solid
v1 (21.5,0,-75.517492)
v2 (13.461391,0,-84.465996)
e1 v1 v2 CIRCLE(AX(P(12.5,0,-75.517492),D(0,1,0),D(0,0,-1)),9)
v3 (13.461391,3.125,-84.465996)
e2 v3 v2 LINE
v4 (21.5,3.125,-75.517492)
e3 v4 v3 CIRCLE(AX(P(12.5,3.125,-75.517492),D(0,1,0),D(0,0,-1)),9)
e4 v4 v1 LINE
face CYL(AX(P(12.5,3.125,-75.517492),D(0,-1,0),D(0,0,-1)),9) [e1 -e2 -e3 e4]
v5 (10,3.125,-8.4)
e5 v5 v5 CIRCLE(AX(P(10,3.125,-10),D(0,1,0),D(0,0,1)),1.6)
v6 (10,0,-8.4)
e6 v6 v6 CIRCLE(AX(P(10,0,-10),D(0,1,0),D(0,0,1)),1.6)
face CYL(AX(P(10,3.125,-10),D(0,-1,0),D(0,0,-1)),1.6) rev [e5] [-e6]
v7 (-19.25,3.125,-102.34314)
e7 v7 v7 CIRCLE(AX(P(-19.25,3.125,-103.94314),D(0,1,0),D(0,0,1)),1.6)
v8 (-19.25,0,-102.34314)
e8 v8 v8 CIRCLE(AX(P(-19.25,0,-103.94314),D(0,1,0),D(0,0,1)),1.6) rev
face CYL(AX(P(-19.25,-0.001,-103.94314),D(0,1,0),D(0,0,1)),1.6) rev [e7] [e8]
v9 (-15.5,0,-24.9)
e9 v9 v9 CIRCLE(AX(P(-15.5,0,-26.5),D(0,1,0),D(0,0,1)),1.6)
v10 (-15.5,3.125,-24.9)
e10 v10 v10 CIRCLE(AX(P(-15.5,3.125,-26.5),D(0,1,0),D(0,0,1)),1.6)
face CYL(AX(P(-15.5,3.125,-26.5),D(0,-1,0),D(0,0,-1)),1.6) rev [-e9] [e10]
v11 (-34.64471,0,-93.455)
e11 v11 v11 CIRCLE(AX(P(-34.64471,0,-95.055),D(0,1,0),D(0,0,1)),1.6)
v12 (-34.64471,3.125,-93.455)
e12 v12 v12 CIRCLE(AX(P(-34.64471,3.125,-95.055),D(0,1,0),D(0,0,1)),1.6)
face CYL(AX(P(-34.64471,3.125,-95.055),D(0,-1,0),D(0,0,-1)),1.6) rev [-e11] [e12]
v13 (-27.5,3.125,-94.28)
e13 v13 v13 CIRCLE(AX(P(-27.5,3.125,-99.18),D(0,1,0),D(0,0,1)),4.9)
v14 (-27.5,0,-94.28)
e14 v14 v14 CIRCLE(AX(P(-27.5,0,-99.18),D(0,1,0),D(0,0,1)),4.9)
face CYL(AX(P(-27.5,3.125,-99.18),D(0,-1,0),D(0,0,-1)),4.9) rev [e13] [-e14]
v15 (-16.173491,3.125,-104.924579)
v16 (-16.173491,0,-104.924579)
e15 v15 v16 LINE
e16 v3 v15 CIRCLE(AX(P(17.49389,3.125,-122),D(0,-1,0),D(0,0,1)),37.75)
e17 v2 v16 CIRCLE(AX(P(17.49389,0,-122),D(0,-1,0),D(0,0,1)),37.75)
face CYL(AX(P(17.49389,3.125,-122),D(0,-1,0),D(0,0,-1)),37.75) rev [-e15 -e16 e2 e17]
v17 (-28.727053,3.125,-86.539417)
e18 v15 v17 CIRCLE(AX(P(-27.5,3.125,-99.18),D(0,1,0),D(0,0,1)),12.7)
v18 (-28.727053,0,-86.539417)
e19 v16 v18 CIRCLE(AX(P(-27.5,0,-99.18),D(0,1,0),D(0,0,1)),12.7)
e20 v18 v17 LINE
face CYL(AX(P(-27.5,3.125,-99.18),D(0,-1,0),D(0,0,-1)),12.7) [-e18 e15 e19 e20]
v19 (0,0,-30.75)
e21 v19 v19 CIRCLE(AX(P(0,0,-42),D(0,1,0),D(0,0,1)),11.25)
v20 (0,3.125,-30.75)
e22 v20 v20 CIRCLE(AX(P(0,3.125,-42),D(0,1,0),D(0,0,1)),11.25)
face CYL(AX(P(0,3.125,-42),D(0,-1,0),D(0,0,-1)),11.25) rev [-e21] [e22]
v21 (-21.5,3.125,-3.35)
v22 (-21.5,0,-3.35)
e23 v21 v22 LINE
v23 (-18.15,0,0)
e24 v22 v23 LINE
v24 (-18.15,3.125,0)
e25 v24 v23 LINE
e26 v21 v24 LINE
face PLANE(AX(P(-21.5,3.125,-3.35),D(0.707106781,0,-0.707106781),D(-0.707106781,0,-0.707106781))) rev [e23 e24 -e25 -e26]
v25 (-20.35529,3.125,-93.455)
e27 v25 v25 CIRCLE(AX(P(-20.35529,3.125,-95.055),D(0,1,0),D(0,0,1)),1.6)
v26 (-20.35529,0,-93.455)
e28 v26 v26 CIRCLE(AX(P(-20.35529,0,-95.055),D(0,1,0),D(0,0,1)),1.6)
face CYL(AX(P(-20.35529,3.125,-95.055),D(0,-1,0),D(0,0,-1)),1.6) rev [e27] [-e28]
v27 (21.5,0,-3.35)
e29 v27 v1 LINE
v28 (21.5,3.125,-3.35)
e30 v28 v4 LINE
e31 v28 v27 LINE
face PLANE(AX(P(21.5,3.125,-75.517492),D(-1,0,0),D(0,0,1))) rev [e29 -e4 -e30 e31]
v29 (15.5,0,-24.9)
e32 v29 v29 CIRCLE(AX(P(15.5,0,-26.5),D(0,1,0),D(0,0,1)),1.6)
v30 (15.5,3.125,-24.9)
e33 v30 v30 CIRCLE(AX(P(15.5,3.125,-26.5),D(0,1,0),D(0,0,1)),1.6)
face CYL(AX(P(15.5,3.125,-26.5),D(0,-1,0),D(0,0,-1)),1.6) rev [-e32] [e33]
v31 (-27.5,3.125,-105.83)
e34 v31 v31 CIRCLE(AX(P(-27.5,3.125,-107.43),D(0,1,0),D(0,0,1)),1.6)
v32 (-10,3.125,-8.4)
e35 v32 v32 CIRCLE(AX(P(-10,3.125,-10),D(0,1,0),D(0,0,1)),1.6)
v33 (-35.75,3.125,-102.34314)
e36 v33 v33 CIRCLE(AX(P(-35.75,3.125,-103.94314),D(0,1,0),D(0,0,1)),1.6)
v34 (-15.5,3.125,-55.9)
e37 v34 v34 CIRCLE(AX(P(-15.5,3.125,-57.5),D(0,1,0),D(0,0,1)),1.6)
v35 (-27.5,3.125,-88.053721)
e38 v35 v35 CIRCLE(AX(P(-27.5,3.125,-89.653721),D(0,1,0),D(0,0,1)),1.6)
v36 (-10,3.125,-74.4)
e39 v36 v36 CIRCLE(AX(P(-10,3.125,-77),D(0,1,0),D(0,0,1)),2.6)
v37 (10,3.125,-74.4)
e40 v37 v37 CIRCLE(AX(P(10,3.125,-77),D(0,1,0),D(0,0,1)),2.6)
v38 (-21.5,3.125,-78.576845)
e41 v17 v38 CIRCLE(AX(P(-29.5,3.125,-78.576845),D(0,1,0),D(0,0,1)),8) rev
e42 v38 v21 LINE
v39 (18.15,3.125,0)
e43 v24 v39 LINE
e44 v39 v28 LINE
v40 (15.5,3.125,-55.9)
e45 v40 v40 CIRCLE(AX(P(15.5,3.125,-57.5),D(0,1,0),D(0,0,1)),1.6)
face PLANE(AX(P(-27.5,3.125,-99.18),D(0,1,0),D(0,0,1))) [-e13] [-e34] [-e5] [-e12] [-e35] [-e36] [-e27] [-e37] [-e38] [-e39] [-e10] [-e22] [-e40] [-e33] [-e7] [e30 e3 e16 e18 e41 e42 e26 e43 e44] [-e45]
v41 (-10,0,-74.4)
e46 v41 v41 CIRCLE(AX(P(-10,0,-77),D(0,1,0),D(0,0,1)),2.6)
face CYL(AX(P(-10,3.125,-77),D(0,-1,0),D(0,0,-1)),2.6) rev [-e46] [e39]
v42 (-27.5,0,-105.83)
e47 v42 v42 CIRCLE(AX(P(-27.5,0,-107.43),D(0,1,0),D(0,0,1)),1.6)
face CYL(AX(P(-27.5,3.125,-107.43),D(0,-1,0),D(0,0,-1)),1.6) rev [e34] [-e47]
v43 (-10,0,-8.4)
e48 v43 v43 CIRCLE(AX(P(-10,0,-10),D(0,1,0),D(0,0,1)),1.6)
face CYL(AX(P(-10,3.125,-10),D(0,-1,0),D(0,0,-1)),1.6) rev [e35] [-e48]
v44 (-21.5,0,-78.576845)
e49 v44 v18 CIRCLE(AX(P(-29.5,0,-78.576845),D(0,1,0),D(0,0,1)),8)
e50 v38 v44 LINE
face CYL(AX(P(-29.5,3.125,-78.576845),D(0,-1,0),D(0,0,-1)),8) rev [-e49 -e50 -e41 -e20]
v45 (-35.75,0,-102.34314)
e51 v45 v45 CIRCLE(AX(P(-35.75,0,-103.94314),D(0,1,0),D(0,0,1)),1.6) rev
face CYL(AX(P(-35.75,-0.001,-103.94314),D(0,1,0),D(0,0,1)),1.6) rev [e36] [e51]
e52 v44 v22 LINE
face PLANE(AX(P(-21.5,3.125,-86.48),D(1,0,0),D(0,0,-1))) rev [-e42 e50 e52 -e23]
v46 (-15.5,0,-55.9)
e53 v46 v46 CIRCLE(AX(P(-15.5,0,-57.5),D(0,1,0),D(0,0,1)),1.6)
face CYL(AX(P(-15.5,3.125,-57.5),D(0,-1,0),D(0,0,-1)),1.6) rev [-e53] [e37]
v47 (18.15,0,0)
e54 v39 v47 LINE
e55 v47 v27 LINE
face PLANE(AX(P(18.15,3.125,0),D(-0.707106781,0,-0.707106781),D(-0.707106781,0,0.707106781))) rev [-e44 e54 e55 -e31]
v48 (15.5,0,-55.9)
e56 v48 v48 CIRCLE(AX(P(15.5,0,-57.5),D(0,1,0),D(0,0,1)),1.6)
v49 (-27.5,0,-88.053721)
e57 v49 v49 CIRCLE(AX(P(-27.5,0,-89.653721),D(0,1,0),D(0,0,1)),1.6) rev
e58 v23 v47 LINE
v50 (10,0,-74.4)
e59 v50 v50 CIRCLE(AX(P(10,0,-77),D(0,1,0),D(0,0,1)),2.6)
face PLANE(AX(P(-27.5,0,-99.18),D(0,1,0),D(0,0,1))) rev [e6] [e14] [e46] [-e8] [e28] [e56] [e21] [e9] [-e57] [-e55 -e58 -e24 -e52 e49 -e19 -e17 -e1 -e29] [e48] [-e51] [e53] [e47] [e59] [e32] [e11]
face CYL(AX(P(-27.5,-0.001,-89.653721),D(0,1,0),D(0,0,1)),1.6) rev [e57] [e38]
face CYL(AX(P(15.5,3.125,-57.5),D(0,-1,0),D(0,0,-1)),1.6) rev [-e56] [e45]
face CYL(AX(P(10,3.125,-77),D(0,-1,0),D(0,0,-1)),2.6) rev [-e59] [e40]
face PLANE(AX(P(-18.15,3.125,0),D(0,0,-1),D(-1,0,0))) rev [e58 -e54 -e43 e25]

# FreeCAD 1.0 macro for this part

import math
import FreeCAD as App
import Part
import Sketcher
Q = App.Units.Quantity


def edges_at(feature, points):
    """Names of the edges that pass closest to the given points."""
    edges = feature.Shape.Edges
    near = lambda p: min(range(len(edges)), key=lambda i: edges[i].distToShape(Part.Vertex(*p))[0])
    return sorted({f"Edge{near(p) + 1}" for p in points})

doc = App.newDocument("Part")
body = doc.addObject("PartDesign::Body", "Body")

# Sketch on XZ plane
sketch1 = body.newObject("Sketcher::SketchObject", "Sketch")
sketch1.AttachmentSupport = (doc.getObject("XZ_Plane"), [""])
sketch1.MapMode = "FlatFace"
sketch1.addGeometry([
    Part.LineSegment(App.Vector(-27.5, -86.5, 0), App.Vector(-21.5, -86.5, 0)),  # 0
    Part.LineSegment(App.Vector(-21.5, -86.5, 0), App.Vector(-21.5, -3.4, 0)),  # 1
    Part.LineSegment(App.Vector(-21.5, -3.4, 0), App.Vector(-18.1, 0, 0)),  # 2
    Part.LineSegment(App.Vector(-18.1, 0, 0), App.Vector(18.1, 0, 0)),  # 3
    Part.LineSegment(App.Vector(18.1, 0, 0), App.Vector(21.5, -3.4, 0)),  # 4
    Part.LineSegment(App.Vector(21.5, -3.4, 0), App.Vector(21.5, -75.5, 0)),  # 5
    Part.ArcOfCircle(Part.Circle(App.Vector(12.5, -75.5, 0), App.Vector(0, 0, 1), 9), math.radians(-84), math.radians(0)),  # 6
    Part.ArcOfCircle(Part.Circle(App.Vector(17.5, -122, 0), App.Vector(0, 0, 1), 37.7), math.radians(96), math.radians(153)),  # 7
    Part.ArcOfCircle(Part.Circle(App.Vector(-27.5, -99.2, 0), App.Vector(0, 0, 1), 12.7), math.radians(90), math.radians(333)),  # 8
    Part.Circle(App.Vector(-10, -10, 0), App.Vector(0, 0, 1), 1.6),  # 9
    Part.Circle(App.Vector(-15.5, -26.5, 0), App.Vector(0, 0, 1), 1.6),  # 10
    Part.Circle(App.Vector(-15.5, -57.5, 0), App.Vector(0, 0, 1), 1.6),  # 11
    Part.Circle(App.Vector(10, -10, 0), App.Vector(0, 0, 1), 1.6),  # 12
    Part.Circle(App.Vector(15.5, -26.5, 0), App.Vector(0, 0, 1), 1.6),  # 13
    Part.Circle(App.Vector(0, -42, 0), App.Vector(0, 0, 1), 11.2),  # 14
    Part.Circle(App.Vector(15.5, -57.5, 0), App.Vector(0, 0, 1), 1.6),  # 15
    Part.Circle(App.Vector(-10, -77, 0), App.Vector(0, 0, 1), 2.6),  # 16
    Part.Circle(App.Vector(-34.6, -95.1, 0), App.Vector(0, 0, 1), 1.6),  # 17
    Part.Circle(App.Vector(-27.5, -99.2, 0), App.Vector(0, 0, 1), 4.9),  # 18
    Part.Circle(App.Vector(-27.5, -107.4, 0), App.Vector(0, 0, 1), 1.6),  # 19
    Part.Circle(App.Vector(-20.4, -95.1, 0), App.Vector(0, 0, 1), 1.6),  # 20
    Part.Circle(App.Vector(10, -77, 0), App.Vector(0, 0, 1), 2.6),  # 21
], False)
sketch1.addConstraint([
    Sketcher.Constraint("Coincident", 0, 2, 1, 1),
    Sketcher.Constraint("Coincident", 1, 2, 2, 1),
    Sketcher.Constraint("Coincident", 2, 2, 3, 1),
    Sketcher.Constraint("Coincident", 3, 2, 4, 1),
    Sketcher.Constraint("Coincident", 4, 2, 5, 1),
    Sketcher.Constraint("Tangent", 5, 2, 6, 2),
    Sketcher.Constraint("Tangent", 6, 1, 7, 1),
    Sketcher.Constraint("Tangent", 7, 2, 8, 2),
    Sketcher.Constraint("Tangent", 8, 1, 0, 1),
    Sketcher.Constraint("Horizontal", 0),
    Sketcher.Constraint("Vertical", 1),
    Sketcher.Constraint("Horizontal", 3),
    Sketcher.Constraint("Vertical", 5),
    Sketcher.Constraint("Coincident", 18, 3, 8, 3),
    Sketcher.Constraint("Equal", 9, 10),
    Sketcher.Constraint("Equal", 10, 11),
    Sketcher.Constraint("Equal", 11, 12),
    Sketcher.Constraint("Equal", 12, 13),
    Sketcher.Constraint("Equal", 13, 15),
    Sketcher.Constraint("Equal", 15, 17),
    Sketcher.Constraint("Equal", 17, 19),
    Sketcher.Constraint("Equal", 19, 20),
    Sketcher.Constraint("Equal", 16, 21),
    Sketcher.Constraint("Symmetric", 2, 2, 3, 2, -1, 1),
    Sketcher.Constraint("Symmetric", 9, 3, 12, 3, -2),
    Sketcher.Constraint("Symmetric", 10, 3, 13, 3, -2),
    Sketcher.Constraint("Symmetric", 11, 3, 15, 3, -2),
    Sketcher.Constraint("Symmetric", 16, 3, 21, 3, -2),
    Sketcher.Constraint("Symmetric", 1, 2, 4, 2, -2),
    Sketcher.Constraint("PointOnObject", 14, 3, -2),
    Sketcher.Constraint("Perpendicular", 2, 4),
    Sketcher.Constraint("Horizontal", 17, 3, 20, 3),
    Sketcher.Constraint("Vertical", 10, 3, 11, 3),
    Sketcher.Constraint("Vertical", 9, 3, 16, 3),
    Sketcher.Constraint("Vertical", 18, 3, 19, 3),
    Sketcher.Constraint("Radius", 6, Q("9 mm")),
    Sketcher.Constraint("Diameter", 9, Q("3.2 mm")),
    Sketcher.Constraint("Diameter", 14, Q("22.5 mm")),
    Sketcher.Constraint("Diameter", 16, Q("5.2 mm")),
    Sketcher.Constraint("Diameter", 18, Q("9.8 mm")),
    Sketcher.Constraint("Radius", 8, Q("12.7 mm")),
    Sketcher.Constraint("DistanceX", 0, 1, 0, 2, Q("6 mm")),
    Sketcher.Constraint("Radius", 7, Q("37.75 mm")),
    Sketcher.Constraint("DistanceX", 3, 1, 3, 2, Q("36.3 mm")),
    Sketcher.Constraint("DistanceY", 7, 3, -1, 1, Q("122 mm")),
    Sketcher.Constraint("DistanceX", 9, 3, -1, 1, Q("10 mm")),
    Sketcher.Constraint("DistanceY", 9, 3, -1, 1, Q("10 mm")),
    Sketcher.Constraint("DistanceY", 14, 3, -1, 1, Q("42 mm")),
    Sketcher.Constraint("DistanceY", 16, 3, -1, 1, Q("77 mm")),
    Sketcher.Constraint("DistanceX", 8, 3, 6, 3, Q("40 mm")),
    Sketcher.Constraint("DistanceX", 10, 3, 6, 3, Q("28 mm")),
    Sketcher.Constraint("DistanceY", 11, 3, 10, 3, Q("31 mm")),
    Sketcher.Constraint("DistanceY", 1, 1, 1, 2, Q("83.13 mm")),
    Sketcher.Constraint("DistanceY", 10, 3, -1, 1, Q("26.5 mm")),
    Sketcher.Constraint("DistanceY", 19, 3, -1, 1, Q("107.43 mm")),
    Sketcher.Constraint("DistanceY", 17, 3, -1, 1, Q("95.055 mm")),
    Sketcher.Constraint("DistanceX", 17, 3, 7, 3, Q("52.138599 mm")),
    Sketcher.Constraint("DistanceX", 20, 3, 7, 2, Q("4.1818 mm")),
])
pad1 = body.newObject("PartDesign::Pad", "Pad")
pad1.Profile = sketch1
pad1.Length = 3.125
pad1.Reversed = True
doc.recompute()

fillet = body.newObject("PartDesign::Fillet", "Fillet")
fillet.Base = (pad1, edges_at(pad1, [(-21.5, 1.562, -86.48)]))
fillet.Radius = 8

# Sketch on XZ plane
sketch2 = body.newObject("Sketcher::SketchObject", "Sketch001")
sketch2.AttachmentSupport = (doc.getObject("XZ_Plane"), [""])
sketch2.MapMode = "FlatFace"
sketch2.AttachmentOffset = App.Placement(App.Vector(0, 0, -3.125), App.Rotation())
sketch2.addGeometry(Part.Circle(App.Vector(-27.5, -89.7, 0), App.Vector(0, 0, 1), 1.6), False)
sketch2.addConstraint([
    Sketcher.Constraint("Diameter", 0, Q("3.2 mm")),
    Sketcher.Constraint("DistanceX", 0, 3, -1, 1, Q("27.5 mm")),
    Sketcher.Constraint("DistanceY", 0, 3, -1, 1, Q("89.653721 mm")),
])
pocket1 = body.newObject("PartDesign::Pocket", "Pocket")
pocket1.Profile = sketch2
pocket1.Type = "UpToFirst"
pocket1.Reversed = True

# Sketch on XZ plane
sketch3 = body.newObject("Sketcher::SketchObject", "Sketch002")
sketch3.AttachmentSupport = (doc.getObject("XZ_Plane"), [""])
sketch3.MapMode = "FlatFace"
sketch3.AttachmentOffset = App.Placement(App.Vector(0, 0, -3.125), App.Rotation())
sketch3.addGeometry(Part.Circle(App.Vector(-35.8, -103.9, 0), App.Vector(0, 0, 1), 1.6), False)
sketch3.addConstraint([
    Sketcher.Constraint("Diameter", 0, Q("3.2 mm")),
    Sketcher.Constraint("DistanceX", 0, 3, -1, 1, Q("35.75 mm")),
    Sketcher.Constraint("DistanceY", 0, 3, -1, 1, Q("103.94314 mm")),
])
pocket2 = body.newObject("PartDesign::Pocket", "Pocket001")
pocket2.Profile = sketch3
pocket2.Type = "UpToFirst"
pocket2.Reversed = True

# Sketch on XZ plane
sketch4 = body.newObject("Sketcher::SketchObject", "Sketch003")
sketch4.AttachmentSupport = (doc.getObject("XZ_Plane"), [""])
sketch4.MapMode = "FlatFace"
sketch4.AttachmentOffset = App.Placement(App.Vector(0, 0, -3.125), App.Rotation())
sketch4.addGeometry(Part.Circle(App.Vector(-19.2, -103.9, 0), App.Vector(0, 0, 1), 1.6), False)
sketch4.addConstraint([
    Sketcher.Constraint("Diameter", 0, Q("3.2 mm")),
    Sketcher.Constraint("DistanceX", 0, 3, -1, 1, Q("19.25 mm")),
    Sketcher.Constraint("DistanceY", 0, 3, -1, 1, Q("103.94314 mm")),
])
pocket3 = body.newObject("PartDesign::Pocket", "Pocket002")
pocket3.Profile = sketch4
pocket3.Type = "UpToFirst"
pocket3.Reversed = True

doc.recompute()
